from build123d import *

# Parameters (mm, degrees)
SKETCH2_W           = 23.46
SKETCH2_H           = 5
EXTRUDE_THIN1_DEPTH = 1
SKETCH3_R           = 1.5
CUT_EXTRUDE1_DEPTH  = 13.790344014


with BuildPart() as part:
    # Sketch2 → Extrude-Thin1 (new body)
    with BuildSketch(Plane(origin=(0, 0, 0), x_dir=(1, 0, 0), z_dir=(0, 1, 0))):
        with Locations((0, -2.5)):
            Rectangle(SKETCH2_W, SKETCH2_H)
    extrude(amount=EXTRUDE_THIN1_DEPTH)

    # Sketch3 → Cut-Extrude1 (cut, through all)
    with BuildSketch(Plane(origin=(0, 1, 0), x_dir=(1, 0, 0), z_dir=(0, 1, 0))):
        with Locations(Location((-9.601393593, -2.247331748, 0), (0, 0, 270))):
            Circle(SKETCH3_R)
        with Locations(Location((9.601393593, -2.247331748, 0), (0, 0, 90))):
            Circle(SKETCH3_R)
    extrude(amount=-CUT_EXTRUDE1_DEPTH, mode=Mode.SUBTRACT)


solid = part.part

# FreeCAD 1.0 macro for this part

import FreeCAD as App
import Part
import Sketcher

V = App.Vector


def add_polygon(sketch, points):
    """Adds a closed chain of lines whose ends are joined by coincident constraints."""
    first, n = sketch.GeometryCount, len(points)
    for a, b in zip(points, points[1:] + points[:1]):
        sketch.addGeometry(Part.LineSegment(App.Vector(*a, 0), App.Vector(*b, 0)), False)
    for i in range(n):
        sketch.addConstraint(Sketcher.Constraint("Coincident", first + i, 2, first + (i + 1) % n, 1))

doc = App.newDocument("Part")
body = doc.addObject("PartDesign::Body", "Body")

# Sketch on XZ plane
sketch1 = body.newObject("Sketcher::SketchObject", "Sketch")
sketch1.AttachmentSupport = (doc.getObject("XZ_Plane"), [""])
sketch1.MapMode = "FlatFace"
add_polygon(sketch1, [(-12, 0), (-12, 5), (12, 5), (12, 0)])  # lines 0-3
sketch1.addConstraint([
    Sketcher.Constraint("Vertical", 0),
    Sketcher.Constraint("Horizontal", 1),
    Sketcher.Constraint("Vertical", 2),
    Sketcher.Constraint("Horizontal", 3),
    Sketcher.Constraint("Symmetric", 2, 2, 3, 2, -1, 1),
    Sketcher.Constraint("DistanceY", 0, 1, 0, 2, 5.0),
    Sketcher.Constraint("DistanceX", 1, 1, 1, 2, 23.46),
])
pad1 = body.newObject("PartDesign::Pad", "Pad")
pad1.Profile = sketch1
pad1.Length = 1
pad1.Reversed = True

# Sketch on XZ plane
sketch2 = body.newObject("Sketcher::SketchObject", "Sketch001")
sketch2.AttachmentSupport = (doc.getObject("XZ_Plane"), [""])
sketch2.MapMode = "FlatFace"
sketch2.AttachmentOffset = App.Placement(V(0, 0, -1), App.Rotation())
sketch2.addGeometry([
    Part.Circle(V(-9.6, 2.2, 0), V(0, 0, 1), 1.5),
    Part.Circle(V(9.6, 2.2, 0), V(0, 0, 1), 1.5),
], False)
sketch2.addConstraint([
    Sketcher.Constraint("Equal", 0, 1),
    Sketcher.Constraint("Symmetric", 0, 3, 1, 3, -2),
    Sketcher.Constraint("Diameter", 0, 3.0),
    Sketcher.Constraint("DistanceY", -1, 1, 0, 3, 2.247332),
    Sketcher.Constraint("DistanceX", 0, 3, -1, 1, 9.601394),
])
pocket1 = body.newObject("PartDesign::Pocket", "Pocket")
pocket1.Profile = sketch2
pocket1.Type = "ThroughAll"
pocket1.Reversed = True

doc.recompute()
